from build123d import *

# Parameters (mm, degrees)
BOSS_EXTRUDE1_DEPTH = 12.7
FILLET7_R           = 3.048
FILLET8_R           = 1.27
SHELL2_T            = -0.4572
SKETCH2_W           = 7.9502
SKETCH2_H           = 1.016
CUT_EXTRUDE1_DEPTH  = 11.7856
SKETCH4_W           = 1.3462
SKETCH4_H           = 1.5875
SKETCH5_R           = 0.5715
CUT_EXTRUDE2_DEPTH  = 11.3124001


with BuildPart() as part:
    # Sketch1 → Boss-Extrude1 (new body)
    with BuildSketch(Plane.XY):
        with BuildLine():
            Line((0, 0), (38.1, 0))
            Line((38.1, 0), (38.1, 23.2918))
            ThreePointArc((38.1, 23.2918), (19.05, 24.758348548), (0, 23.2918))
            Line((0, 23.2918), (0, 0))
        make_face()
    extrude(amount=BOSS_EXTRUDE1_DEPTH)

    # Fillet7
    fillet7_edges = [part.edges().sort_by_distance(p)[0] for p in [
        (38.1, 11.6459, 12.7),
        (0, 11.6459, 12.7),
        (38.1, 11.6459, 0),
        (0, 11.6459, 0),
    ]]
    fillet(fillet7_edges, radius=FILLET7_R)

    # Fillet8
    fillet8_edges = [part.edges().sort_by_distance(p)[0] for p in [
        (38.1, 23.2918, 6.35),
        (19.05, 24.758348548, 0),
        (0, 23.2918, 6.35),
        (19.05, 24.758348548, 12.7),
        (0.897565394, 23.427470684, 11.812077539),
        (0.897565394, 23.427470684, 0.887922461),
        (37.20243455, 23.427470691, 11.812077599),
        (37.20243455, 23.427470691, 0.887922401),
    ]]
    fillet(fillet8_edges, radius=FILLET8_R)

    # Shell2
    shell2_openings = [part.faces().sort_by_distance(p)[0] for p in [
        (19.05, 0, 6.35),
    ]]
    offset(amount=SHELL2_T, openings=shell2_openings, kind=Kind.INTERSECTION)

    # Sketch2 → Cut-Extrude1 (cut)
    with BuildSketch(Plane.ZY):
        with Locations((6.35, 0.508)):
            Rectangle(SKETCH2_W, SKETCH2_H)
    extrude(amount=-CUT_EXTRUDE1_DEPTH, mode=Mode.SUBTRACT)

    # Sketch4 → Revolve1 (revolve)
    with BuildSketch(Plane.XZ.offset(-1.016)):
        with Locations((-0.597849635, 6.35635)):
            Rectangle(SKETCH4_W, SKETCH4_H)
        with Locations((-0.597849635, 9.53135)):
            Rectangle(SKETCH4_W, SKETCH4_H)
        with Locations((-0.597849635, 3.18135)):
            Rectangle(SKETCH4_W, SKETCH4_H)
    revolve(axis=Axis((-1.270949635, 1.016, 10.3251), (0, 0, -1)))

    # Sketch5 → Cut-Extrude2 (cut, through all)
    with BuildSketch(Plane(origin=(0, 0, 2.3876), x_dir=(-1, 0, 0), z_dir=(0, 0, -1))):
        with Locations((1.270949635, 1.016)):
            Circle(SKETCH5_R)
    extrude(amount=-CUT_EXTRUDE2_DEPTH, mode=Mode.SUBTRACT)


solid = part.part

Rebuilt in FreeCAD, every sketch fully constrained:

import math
import FreeCAD as App
import Part
import Sketcher
from FreeCAD import Vector
Q = App.Units.Quantity


def edges_at(feature, points):
    """Names of the edges that pass closest to the given points."""
    edges = feature.Shape.Edges
    near = lambda p: min(range(len(edges)), key=lambda i: edges[i].distToShape(Part.Vertex(*p))[0])
    return sorted({f"Edge{near(p) + 1}" for p in points})


def faces_at(feature, points):
    """Names of the faces that lie closest to the given points."""
    faces = feature.Shape.Faces
    near = lambda p: min(range(len(faces)), key=lambda i: faces[i].distToShape(Part.Vertex(*p))[0])
    return sorted({f"Face{near(p) + 1}" for p in points})


def add_polygon(sketch, points):
    """Adds a closed chain of lines whose ends are joined by coincident constraints."""
    first, n = sketch.GeometryCount, len(points)
    for a, b in zip(points, points[1:] + points[:1]):
        sketch.addGeometry(Part.LineSegment(App.Vector(*a, 0), App.Vector(*b, 0)), False)
    for i in range(n):
        sketch.addConstraint(Sketcher.Constraint("Coincident", first + i, 2, first + (i + 1) % n, 1))

doc = App.newDocument("Part")
body = doc.addObject("PartDesign::Body", "Body")

sketch1 = doc.addObject("Sketcher::SketchObject", "Sketch")
body.addObject(sketch1)
sketch1.AttachmentSupport = (doc.XY_Plane, [""])
sketch1.MapMode = "FlatFace"
sketch1.addGeometry([
    Part.LineSegment(Vector(0, 0, 0), Vector(38.1, 0, 0)),
    Part.LineSegment(Vector(38.1, 0, 0), Vector(38.1, 23.2918, 0)),
    Part.ArcOfCircle(Part.Circle(Vector(19.05, -99.701651, 0), Vector(0, 0, 1), 124.46), math.radians(81.195629), math.radians(98.804371)),
    Part.LineSegment(Vector(0, 23.2918, 0), Vector(0, 0, 0)),
], False)
sketch1.addConstraint([
    Sketcher.Constraint("Coincident", 0, 2, 1, 1),
    Sketcher.Constraint("Coincident", 1, 2, 2, 1),
    Sketcher.Constraint("Coincident", 2, 2, 3, 1),
    Sketcher.Constraint("Coincident", 3, 2, 0, 1),
    Sketcher.Constraint("Horizontal", 0),
    Sketcher.Constraint("Vertical", 1),
    Sketcher.Constraint("Vertical", 3),
    Sketcher.Constraint("Coincident", 3, 2, -1, 1),
    Sketcher.Constraint("Horizontal", 1, 2, 2, 2),
    Sketcher.Constraint("Radius", 2, Q("4.9 in")),
    Sketcher.Constraint("DistanceX", 0, 1, 0, 2, Q("1.5 in")),
    Sketcher.Constraint("DistanceY", 1, 1, 1, 2, Q("0.917 in")),
])
pad1 = doc.addObject("PartDesign::Pad", "Pad")
body.addObject(pad1)
pad1.Profile = sketch1
pad1.Length = Q("0.5 in")
doc.recompute()

fillet = doc.addObject("PartDesign::Fillet", "Fillet")
body.addObject(fillet)
fillet.Base = (pad1, edges_at(pad1, [
    (38.1, 11.646, 12.7),
    (0, 11.646, 12.7),
    (38.1, 11.646, 0),
    (0, 11.646, 0),
]))
fillet.Radius = Q("0.12 in")
doc.recompute()

fillet2 = doc.addObject("PartDesign::Fillet", "Fillet001")
body.addObject(fillet2)
fillet2.Base = (fillet, edges_at(fillet, [
    (38.1, 23.292, 6.35),
    (19.05, 24.758, 0),
    (0, 23.292, 6.35),
    (19.05, 24.758, 12.7),
    (0.898, 23.427, 11.812),
    (0.898, 23.427, 0.888),
    (37.202, 23.427, 11.812),
    (37.202, 23.427, 0.888),
]))
fillet2.Radius = Q("0.05 in")
doc.recompute()

thickness = doc.addObject("PartDesign::Thickness", "Thickness")
body.addObject(thickness)
thickness.Base = (fillet2, faces_at(fillet2, [(19.05, 0, 6.35)]))
thickness.Value = Q("0.018 in")
thickness.Reversed = True
thickness.Join = "Intersection"

sketch2 = doc.addObject("Sketcher::SketchObject", "Sketch001")
body.addObject(sketch2)
sketch2.AttachmentSupport = (doc.YZ_Plane, [""])
sketch2.MapMode = "FlatFace"
add_polygon(sketch2, [(1.016, 2.3749), (0, 2.3749), (0, 10.3251), (1.016, 10.3251)])
sketch2.addConstraint([
    Sketcher.Constraint("Horizontal", 0),
    Sketcher.Constraint("Vertical", 1),
    Sketcher.Constraint("Horizontal", 2),
    Sketcher.Constraint("Vertical", 3),
    Sketcher.Constraint("PointOnObject", 0, 2, -2),
    Sketcher.Constraint("DistanceX", 0, 2, 0, 1, Q("0.04 in")),
    Sketcher.Constraint("DistanceY", 1, 1, 1, 2, Q("0.313 in")),
    Sketcher.Constraint("DistanceY", -1, 1, 0, 2, Q("0.0935 in")),
])
pocket1 = doc.addObject("PartDesign::Pocket", "Pocket")
body.addObject(pocket1)
pocket1.Profile = sketch2
pocket1.Length = Q("0.464 in")
pocket1.Reversed = True

sketch3 = doc.addObject("Sketcher::SketchObject", "Sketch002")
body.addObject(sketch3)
sketch3.AttachmentSupport = (doc.XZ_Plane, [""])
sketch3.MapMode = "FlatFace"
sketch3.AttachmentOffset = App.Placement(Vector(0, 0, -0.04 * 25.4), App.Rotation())
add_polygon(sketch3, [(-1.27095, 7.1501), (-1.27095, 5.5626), (0.07525, 5.5626), (0.07525, 7.1501)])
add_polygon(sketch3, [(-1.27095, 10.3251), (-1.27095, 8.7376), (0.07525, 8.7376), (0.07525, 10.3251)])
add_polygon(sketch3, [(-1.27095, 3.9751), (-1.27095, 2.3876), (0.07525, 2.3876), (0.07525, 3.9751)])
sketch3.addGeometry(Part.LineSegment(Vector(-1.27095, 10.3251, 0), Vector(-1.27095, 2.3876, 0)), True)
sketch3.addConstraint([
    Sketcher.Constraint("Vertical", 0),
    Sketcher.Constraint("Horizontal", 1),
    Sketcher.Constraint("Vertical", 2),
    Sketcher.Constraint("Horizontal", 3),
    Sketcher.Constraint("Vertical", 4),
    Sketcher.Constraint("Horizontal", 5),
    Sketcher.Constraint("Vertical", 6),
    Sketcher.Constraint("Horizontal", 7),
    Sketcher.Constraint("Vertical", 8),
    Sketcher.Constraint("Horizontal", 9),
    Sketcher.Constraint("Vertical", 10),
    Sketcher.Constraint("Horizontal", 11),
    Sketcher.Constraint("Vertical", 12),
    Sketcher.Constraint("Coincident", 12, 1, 7, 2),
    Sketcher.Constraint("Coincident", 12, 2, 8, 2),
    Sketcher.Constraint("Vertical", 3, 2, 4, 2),
    Sketcher.Constraint("Vertical", 2, 2, 5, 2),
    Sketcher.Constraint("Vertical", 6, 2, 9, 2),
    Sketcher.Constraint("Equal", 2, 4),
    Sketcher.Constraint("Equal", 6, 8),
    Sketcher.Constraint("DistanceX", 1, 1, 1, 2, Q("0.053 in")),
    Sketcher.Constraint("DistanceY", 0, 2, 0, 1, Q("0.0625 in")),
    Sketcher.Constraint("DistanceY", 12, 2, 12, 1, Q("0.3125 in")),
    Sketcher.Constraint("DistanceY", -1, 1, 0, 2, Q("0.219 in")),
    Sketcher.Constraint("DistanceY", -1, 1, 4, 2, Q("0.344 in")),
    Sketcher.Constraint("DistanceX", 0, 2, -1, 1, Q("1.27095 mm")),
])
revolution = doc.addObject("PartDesign::Revolution", "Revolution")
body.addObject(revolution)
revolution.Profile = sketch3
revolution.ReferenceAxis = (sketch3, ["Axis0"])
revolution.Angle = 360

sketch4 = doc.addObject("Sketcher::SketchObject", "Sketch003")
body.addObject(sketch4)
sketch4.AttachmentSupport = (doc.XY_Plane, [""])
sketch4.MapMode = "FlatFace"
sketch4.AttachmentOffset = App.Placement(Vector(0, 0, 0.094 * 25.4), App.Rotation())
sketch4.addGeometry(Part.Circle(Vector(-1.27095, 1.016, 0), Vector(0, 0, 1), 0.5715), False)
sketch4.addConstraint([
    Sketcher.Constraint("Diameter", 0, Q("0.045 in")),
    Sketcher.Constraint("DistanceY", -1, 1, 0, 3, Q("0.04 in")),
    Sketcher.Constraint("DistanceX", 0, 3, -1, 1, Q("1.27095 mm")),
])
pocket2 = doc.addObject("PartDesign::Pocket", "Pocket001")
body.addObject(pocket2)
pocket2.Profile = sketch4
pocket2.Type = "ThroughAll"
pocket2.Reversed = True

doc.recompute()
